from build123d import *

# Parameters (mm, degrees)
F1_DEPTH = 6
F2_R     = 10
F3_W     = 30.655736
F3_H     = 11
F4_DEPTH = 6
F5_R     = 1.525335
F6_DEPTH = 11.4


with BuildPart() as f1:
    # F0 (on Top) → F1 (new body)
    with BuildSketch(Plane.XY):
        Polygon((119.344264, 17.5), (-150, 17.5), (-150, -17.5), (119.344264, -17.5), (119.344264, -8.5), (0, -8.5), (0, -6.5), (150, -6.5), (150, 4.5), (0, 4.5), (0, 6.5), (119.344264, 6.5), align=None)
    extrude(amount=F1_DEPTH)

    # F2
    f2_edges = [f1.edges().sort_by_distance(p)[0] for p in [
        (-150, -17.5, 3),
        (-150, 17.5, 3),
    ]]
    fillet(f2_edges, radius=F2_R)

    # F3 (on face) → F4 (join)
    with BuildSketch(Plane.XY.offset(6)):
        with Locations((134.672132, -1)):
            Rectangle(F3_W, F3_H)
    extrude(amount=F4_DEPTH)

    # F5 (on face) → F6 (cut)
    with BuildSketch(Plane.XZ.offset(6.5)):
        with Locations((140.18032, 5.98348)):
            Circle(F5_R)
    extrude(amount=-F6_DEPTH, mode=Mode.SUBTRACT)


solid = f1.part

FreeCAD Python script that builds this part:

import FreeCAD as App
import Part
import Sketcher


def edges_at(feature, points):
    """Names of the edges that pass closest to the given points."""
    edges = feature.Shape.Edges
    near = lambda p: min(range(len(edges)), key=lambda i: edges[i].distToShape(Part.Vertex(*p))[0])
    return sorted({f"Edge{near(p) + 1}" for p in points})


def add_polygon(sketch, points):
    """Adds a closed chain of lines whose ends are joined by coincident constraints."""
    first, n = sketch.GeometryCount, len(points)
    for a, b in zip(points, points[1:] + points[:1]):
        sketch.addGeometry(Part.LineSegment(App.Vector(*a, 0), App.Vector(*b, 0)), False)
    for i in range(n):
        sketch.addConstraint(Sketcher.Constraint("Coincident", first + i, 2, first + (i + 1) % n, 1))

doc = App.newDocument("Part")
body = doc.addObject("PartDesign::Body", "Body")

# Sketch on XY plane
sketch1 = body.newObject("Sketcher::SketchObject", "Sketch")
sketch1.AttachmentSupport = (doc.getObject("XY_Plane"), [""])
sketch1.MapMode = "FlatFace"
add_polygon(sketch1, [(119.3, 17.5), (-150, 17.5), (-150, -17.5), (119.3, -17.5), (119.3, -8.5), (0, -8.5), (0, -6.5), (150, -6.5), (150, 4.5), (0, 4.5), (0, 6.5), (119.3, 6.5)])  # lines 0-11
sketch1.addConstraint(Sketcher.Constraint("Horizontal", 0))
sketch1.addConstraint(Sketcher.Constraint("Vertical", 1))
sketch1.addConstraint(Sketcher.Constraint("Horizontal", 2))
sketch1.addConstraint(Sketcher.Constraint("Vertical", 3))
sketch1.addConstraint(Sketcher.Constraint("Horizontal", 4))
sketch1.addConstraint(Sketcher.Constraint("Vertical", 5))
sketch1.addConstraint(Sketcher.Constraint("Horizontal", 6))
sketch1.addConstraint(Sketcher.Constraint("Vertical", 7))
sketch1.addConstraint(Sketcher.Constraint("Horizontal", 8))
sketch1.addConstraint(Sketcher.Constraint("Vertical", 9))
sketch1.addConstraint(Sketcher.Constraint("Horizontal", 10))
sketch1.addConstraint(Sketcher.Constraint("Vertical", 11))
sketch1.addConstraint(Sketcher.Constraint("Symmetric", 5, 2, 9, 2, -1, 1))
sketch1.addConstraint(Sketcher.Constraint("Symmetric", 2, 2, 11, 2, -1))
sketch1.addConstraint(Sketcher.Constraint("PointOnObject", 4, 2, -2))
sketch1.addConstraint(Sketcher.Constraint("Equal", 5, 9))
sketch1.addConstraint(Sketcher.Constraint("Equal", 7, 11))
sketch1.addConstraint(Sketcher.Constraint("DistanceX", 6, 1, 6, 2, 150.0))
sketch1.addConstraint(Sketcher.Constraint("DistanceY", 1, 2, 1, 1, 35.0))
sketch1.addConstraint(Sketcher.Constraint("DistanceY", 3, 1, 3, 2, 9.0))
sketch1.addConstraint(Sketcher.Constraint("DistanceX", 0, 2, -1, 1, 150.0))
sketch1.addConstraint(Sketcher.Constraint("DistanceX", 0, 2, 0, 1, 269.344264))
pad1 = body.newObject("PartDesign::Pad", "Pad")
pad1.Profile = sketch1
pad1.Length = 6
doc.recompute()

fillet = body.newObject("PartDesign::Fillet", "Fillet")
fillet.Base = (pad1, edges_at(pad1, [(-150, -17.5, 3), (-150, 17.5, 3)]))
fillet.Radius = 10

# Sketch on XY plane
sketch2 = body.newObject("Sketcher::SketchObject", "Sketch001")
sketch2.AttachmentSupport = (doc.getObject("XY_Plane"), [""])
sketch2.MapMode = "FlatFace"
sketch2.AttachmentOffset = App.Placement(App.Vector(0, 0, 6), App.Rotation())
add_polygon(sketch2, [(119, 4), (119, -6), (150, -6), (150, 4)])  # lines 0-3
sketch2.addConstraint(Sketcher.Constraint("Vertical", 0))
sketch2.addConstraint(Sketcher.Constraint("Horizontal", 1))
sketch2.addConstraint(Sketcher.Constraint("Vertical", 2))
sketch2.addConstraint(Sketcher.Constraint("Horizontal", 3))
sketch2.addConstraint(Sketcher.Constraint("DistanceY", 0, 2, 0, 1, 11.0))
sketch2.addConstraint(Sketcher.Constraint("DistanceX", -1, 1, 1, 2, 150.0))
sketch2.addConstraint(Sketcher.Constraint("DistanceY", 0, 2, -1, 1, 6.5))
sketch2.addConstraint(Sketcher.Constraint("DistanceX", 1, 1, 1, 2, 30.655736))
pad2 = body.newObject("PartDesign::Pad", "Pad001")
pad2.Profile = sketch2
pad2.Length = 6

# Sketch on XZ plane
sketch3 = body.newObject("Sketcher::SketchObject", "Sketch002")
sketch3.AttachmentSupport = (doc.getObject("XZ_Plane"), [""])
sketch3.MapMode = "FlatFace"
sketch3.AttachmentOffset = App.Placement(App.Vector(0, 0, 6.5), App.Rotation())
sketch3.addGeometry(Part.Circle(App.Vector(140.2, 6, 0), App.Vector(0, 0, 1), 1.5), False)
sketch3.addConstraint(Sketcher.Constraint("Diameter", 0, 3.05067))
sketch3.addConstraint(Sketcher.Constraint("DistanceX", -1, 1, 0, 3, 140.18032))
sketch3.addConstraint(Sketcher.Constraint("DistanceY", -1, 1, 0, 3, 5.98348))
pocket1 = body.newObject("PartDesign::Pocket", "Pocket")
pocket1.Profile = sketch3
pocket1.Length = 11.4

doc.recompute()
